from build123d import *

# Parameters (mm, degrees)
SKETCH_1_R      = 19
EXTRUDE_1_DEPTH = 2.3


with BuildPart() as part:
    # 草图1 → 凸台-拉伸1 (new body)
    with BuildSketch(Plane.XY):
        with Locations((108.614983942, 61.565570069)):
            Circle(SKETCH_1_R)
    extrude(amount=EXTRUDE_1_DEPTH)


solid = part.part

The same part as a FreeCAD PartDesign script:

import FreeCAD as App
import Part
import Sketcher
Q = App.Units.Quantity

doc = App.newDocument("Part")
body = doc.addObject("PartDesign::Body", "Body")

sketch1 = body.newObject("Sketcher::SketchObject", "Sketch")
sketch1.AttachmentSupport = (doc.getObject("XY_Plane"), [""])
sketch1.MapMode = "FlatFace"
sketch1.addGeometry(Part.Circle(App.Vector(108.614984, 61.56557, 0), App.Vector(0, 0, 1), 19), False)
sketch1.addConstraint([
    Sketcher.Constraint("Diameter", 0, Q("38 mm")),
    Sketcher.Constraint("DistanceY", -1, 1, 0, 3, Q("61.56557 mm")),
    Sketcher.Constraint("DistanceX", -1, 1, 0, 3, Q("108.614984 mm")),
])
pad1 = body.newObject("PartDesign::Pad", "Pad")
pad1.Profile = sketch1
pad1.Length = 2.3

doc.recompute()
